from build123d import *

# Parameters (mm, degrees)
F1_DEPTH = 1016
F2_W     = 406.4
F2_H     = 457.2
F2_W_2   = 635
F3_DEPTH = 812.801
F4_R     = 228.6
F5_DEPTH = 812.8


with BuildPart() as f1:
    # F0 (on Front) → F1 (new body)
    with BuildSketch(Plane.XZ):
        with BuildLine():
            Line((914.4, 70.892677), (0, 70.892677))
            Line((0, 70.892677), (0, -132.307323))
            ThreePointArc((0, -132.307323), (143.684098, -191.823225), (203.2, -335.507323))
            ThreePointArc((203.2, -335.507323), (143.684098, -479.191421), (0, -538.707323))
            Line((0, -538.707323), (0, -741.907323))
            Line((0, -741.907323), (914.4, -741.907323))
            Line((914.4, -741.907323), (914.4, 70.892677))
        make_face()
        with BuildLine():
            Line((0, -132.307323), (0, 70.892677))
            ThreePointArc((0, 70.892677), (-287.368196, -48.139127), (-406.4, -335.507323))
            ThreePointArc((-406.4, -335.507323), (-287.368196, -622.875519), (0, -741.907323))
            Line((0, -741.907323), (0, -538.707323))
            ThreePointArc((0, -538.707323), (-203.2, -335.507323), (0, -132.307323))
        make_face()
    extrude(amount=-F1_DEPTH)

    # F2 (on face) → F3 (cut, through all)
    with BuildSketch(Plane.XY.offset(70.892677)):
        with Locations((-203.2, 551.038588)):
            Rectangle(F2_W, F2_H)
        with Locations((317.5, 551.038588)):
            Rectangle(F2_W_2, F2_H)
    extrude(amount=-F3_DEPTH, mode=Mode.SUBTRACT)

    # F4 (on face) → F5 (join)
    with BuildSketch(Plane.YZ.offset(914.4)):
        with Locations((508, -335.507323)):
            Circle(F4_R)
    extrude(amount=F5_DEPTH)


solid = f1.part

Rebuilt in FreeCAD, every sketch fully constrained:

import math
import FreeCAD as App
import Part
import Sketcher
from FreeCAD import Vector
Q = App.Units.Quantity


def add_polygon(sketch, points):
    """Adds a closed chain of lines whose ends are joined by coincident constraints."""
    first, n = sketch.GeometryCount, len(points)
    for a, b in zip(points, points[1:] + points[:1]):
        sketch.addGeometry(Part.LineSegment(App.Vector(*a, 0), App.Vector(*b, 0)), False)
    for i in range(n):
        sketch.addConstraint(Sketcher.Constraint("Coincident", first + i, 2, first + (i + 1) % n, 1))

doc = App.newDocument("Part")
body = doc.addObject("PartDesign::Body", "Body")

# Sketch on XZ plane
sketch1 = body.newObject("Sketcher::SketchObject", "Sketch")
sketch1.AttachmentSupport = (doc.getObject("XZ_Plane"), [""])
sketch1.MapMode = "FlatFace"
sketch1.addGeometry(Part.LineSegment(Vector(914, 71, 0), Vector(0, 71, 0)), False)
sketch1.addGeometry(Part.ArcOfCircle(Part.Circle(Vector(0, -336, 0), Vector(0, 0, 1), 406), math.radians(90), math.radians(180)), False)
sketch1.addGeometry(Part.ArcOfCircle(Part.Circle(Vector(0, -336, 0), Vector(0, 0, 1), 406), math.radians(180), math.radians(270)), False)
sketch1.addGeometry(Part.LineSegment(Vector(0, -742, 0), Vector(914, -742, 0)), False)
sketch1.addGeometry(Part.LineSegment(Vector(914, -742, 0), Vector(914, 71, 0)), False)
sketch1.addGeometry(Part.ArcOfCircle(Part.Circle(Vector(0, -336, 0), Vector(0, 0, 1), 203), math.radians(0), math.radians(90)), False)
sketch1.addGeometry(Part.ArcOfCircle(Part.Circle(Vector(0, -336, 0), Vector(0, 0, 1), 203), math.radians(-90), math.radians(0)), False)
sketch1.addGeometry(Part.ArcOfCircle(Part.Circle(Vector(0, -336, 0), Vector(0, 0, 1), 203), math.radians(90), math.radians(270)), False)
sketch1.addConstraint(Sketcher.Constraint("Tangent", 0, 2, 1, 1))
sketch1.addConstraint(Sketcher.Constraint("Tangent", 1, 2, 2, 1))
sketch1.addConstraint(Sketcher.Constraint("Tangent", 2, 2, 3, 1))
sketch1.addConstraint(Sketcher.Constraint("Coincident", 3, 2, 4, 1))
sketch1.addConstraint(Sketcher.Constraint("Coincident", 4, 2, 0, 1))
sketch1.addConstraint(Sketcher.Constraint("Tangent", 5, 1, 6, 2))
sketch1.addConstraint(Sketcher.Constraint("Tangent", 6, 1, 7, 2))
sketch1.addConstraint(Sketcher.Constraint("Tangent", 7, 1, 5, 2))
sketch1.addConstraint(Sketcher.Constraint("Horizontal", 0))
sketch1.addConstraint(Sketcher.Constraint("Horizontal", 3))
sketch1.addConstraint(Sketcher.Constraint("Vertical", 4))
sketch1.addConstraint(Sketcher.Constraint("Coincident", 5, 3, 1, 3))
sketch1.addConstraint(Sketcher.Constraint("Equal", 1, 2))
sketch1.addConstraint(Sketcher.Constraint("PointOnObject", 1, 3, -2))
sketch1.addConstraint(Sketcher.Constraint("PointOnObject", 6, 1, -2))
sketch1.addConstraint(Sketcher.Constraint("PointOnObject", 7, 1, -2))
sketch1.addConstraint(Sketcher.Constraint("Horizontal", 7, 3, 1, 2))
sketch1.addConstraint(Sketcher.Constraint("Horizontal", 1, 2, 5, 1))
sketch1.addConstraint(Sketcher.Constraint("Radius", 1, Q("16 in")))
sketch1.addConstraint(Sketcher.Constraint("Radius", 5, Q("8 in")))
sketch1.addConstraint(Sketcher.Constraint("DistanceX", 0, 2, 0, 1, Q("36 in")))
sketch1.addConstraint(Sketcher.Constraint("DistanceY", 1, 3, -1, 1, Q("335.507323 mm")))
pad1 = body.newObject("PartDesign::Pad", "Pad")
pad1.Profile = sketch1
pad1.Length = Q("40 in")
pad1.Reversed = True

# Sketch on XY plane
sketch2 = body.newObject("Sketcher::SketchObject", "Sketch001")
sketch2.AttachmentSupport = (doc.getObject("XY_Plane"), [""])
sketch2.MapMode = "FlatFace"
sketch2.AttachmentOffset = App.Placement(Vector(0, 0, 70.892677), App.Rotation())
add_polygon(sketch2, [(-406, 780), (-406, 322), (635, 322), (635, 780)])  # lines 0-3
sketch2.addConstraint(Sketcher.Constraint("Vertical", 0))
sketch2.addConstraint(Sketcher.Constraint("Horizontal", 1))
sketch2.addConstraint(Sketcher.Constraint("Vertical", 2))
sketch2.addConstraint(Sketcher.Constraint("Horizontal", 3))
sketch2.addConstraint(Sketcher.Constraint("DistanceX", 1, 1, 1, 2, Q("41 in")))
sketch2.addConstraint(Sketcher.Constraint("DistanceY", 0, 2, 0, 1, Q("18 in")))
sketch2.addConstraint(Sketcher.Constraint("DistanceX", 0, 2, -1, 1, Q("16 in")))
sketch2.addConstraint(Sketcher.Constraint("DistanceY", -1, 1, 0, 2, Q("322.438588 mm")))
pocket1 = body.newObject("PartDesign::Pocket", "Pocket")
pocket1.Profile = sketch2
pocket1.Type = "ThroughAll"

# Sketch on YZ plane
sketch3 = body.newObject("Sketcher::SketchObject", "Sketch002")
sketch3.AttachmentSupport = (doc.getObject("YZ_Plane"), [""])
sketch3.MapMode = "FlatFace"
sketch3.AttachmentOffset = App.Placement(Vector(0, 0, 36 * 25.4), App.Rotation())
sketch3.addGeometry(Part.Circle(Vector(508, -336, 0), Vector(0, 0, 1), 229), False)
sketch3.addConstraint(Sketcher.Constraint("Diameter", 0, Q("18 in")))
sketch3.addConstraint(Sketcher.Constraint("DistanceX", -1, 1, 0, 3, Q("20 in")))
sketch3.addConstraint(Sketcher.Constraint("DistanceY", 0, 3, -1, 1, Q("335.507323 mm")))
pad2 = body.newObject("PartDesign::Pad", "Pad001")
pad2.Profile = sketch3
pad2.Length = Q("32 in")

doc.recompute()
